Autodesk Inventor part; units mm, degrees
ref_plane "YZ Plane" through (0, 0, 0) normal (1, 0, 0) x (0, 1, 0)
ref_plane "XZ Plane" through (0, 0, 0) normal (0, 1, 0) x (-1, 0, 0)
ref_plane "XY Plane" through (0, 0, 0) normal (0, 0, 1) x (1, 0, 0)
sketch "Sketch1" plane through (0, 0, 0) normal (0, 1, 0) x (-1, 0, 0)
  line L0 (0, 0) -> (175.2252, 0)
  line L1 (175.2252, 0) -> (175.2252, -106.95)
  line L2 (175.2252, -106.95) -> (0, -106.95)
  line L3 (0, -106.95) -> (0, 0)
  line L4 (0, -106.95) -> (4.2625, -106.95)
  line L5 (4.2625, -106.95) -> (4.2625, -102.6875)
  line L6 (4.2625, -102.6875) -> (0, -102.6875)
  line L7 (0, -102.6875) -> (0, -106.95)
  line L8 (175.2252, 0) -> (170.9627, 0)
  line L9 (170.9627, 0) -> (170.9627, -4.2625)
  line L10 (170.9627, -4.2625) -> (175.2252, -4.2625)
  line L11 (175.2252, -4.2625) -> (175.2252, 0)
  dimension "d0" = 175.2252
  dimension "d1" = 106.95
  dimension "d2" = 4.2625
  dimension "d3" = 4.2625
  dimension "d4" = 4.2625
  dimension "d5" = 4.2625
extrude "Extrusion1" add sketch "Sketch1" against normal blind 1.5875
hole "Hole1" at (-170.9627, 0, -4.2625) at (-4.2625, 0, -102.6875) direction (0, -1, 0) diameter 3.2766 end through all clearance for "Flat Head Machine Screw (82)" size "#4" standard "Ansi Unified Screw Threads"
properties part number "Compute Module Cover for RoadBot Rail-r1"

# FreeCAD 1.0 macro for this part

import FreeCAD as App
import Part
import Sketcher
from FreeCAD import Vector
Q = App.Units.Quantity


def add_polygon(sketch, points):
    """Adds a closed chain of lines whose ends are joined by coincident constraints."""
    first, n = sketch.GeometryCount, len(points)
    for a, b in zip(points, points[1:] + points[:1]):
        sketch.addGeometry(Part.LineSegment(App.Vector(*a, 0), App.Vector(*b, 0)), False)
    for i in range(n):
        sketch.addConstraint(Sketcher.Constraint("Coincident", first + i, 2, first + (i + 1) % n, 1))

doc = App.newDocument("Part")
params = doc.addObject("Spreadsheet::Sheet", "Params")
for row, (alias, value) in enumerate([
    ("pad1_length", "0.0625 in"),
    ("sketch2_diameter", "0.129 in"),
    ("hole_diameter", "0.129 in"),
], start=1):
    params.set(f"A{row}", alias)
    params.set(f"B{row}", "=" + value)
    params.setAlias(f"B{row}", alias)

body = doc.addObject("PartDesign::Body", "Body")

# Sketch on XZ plane
sketch1 = body.newObject("Sketcher::SketchObject", "Sketch")
sketch1.AttachmentSupport = (doc.getObject("XZ_Plane"), [""])
sketch1.MapMode = "FlatFace"
add_polygon(sketch1, [(0, 0), (0, -107), (-175, -107), (-175, 0)])  # lines 0-3
sketch1.addConstraint([
    Sketcher.Constraint("Vertical", 0),
    Sketcher.Constraint("Horizontal", 1),
    Sketcher.Constraint("Vertical", 2),
    Sketcher.Constraint("Horizontal", 3),
    Sketcher.Constraint("Coincident", 3, 2, -1, 1),
    Sketcher.Constraint("DistanceX", 1, 2, 1, 1, 175.2252),
    Sketcher.Constraint("DistanceY", 0, 2, 0, 1, 106.95),
])
pad1 = body.newObject("PartDesign::Pad", "Pad")
pad1.Profile = sketch1
pad1.setExpression("Length", "Params.pad1_length")

# Sketch on XZ plane
sketch2 = body.newObject("Sketcher::SketchObject", "Sketch001")
sketch2.AttachmentSupport = (doc.getObject("XZ_Plane"), [""])
sketch2.MapMode = "FlatFace"
sketch2.addGeometry([
    Part.Circle(Vector(-171, -4.3, 0), Vector(0, 0, 1), 1.6),
    Part.Circle(Vector(-4.3, -102.7, 0), Vector(0, 0, 1), 1.6),
], False)
sketch2.addConstraint([
    Sketcher.Constraint("Equal", 0, 1),
    Sketcher.Constraint("Diameter", 0, Q("0.129 in")),
    Sketcher.Constraint("DistanceX", 0, 3, 1, 3, Q("6.563 in")),
    Sketcher.Constraint("DistanceY", 1, 3, 0, 3, Q("3.875 in")),
    Sketcher.Constraint("DistanceX", 0, 3, -1, 1, 170.9627),
    Sketcher.Constraint("DistanceY", 0, 3, -1, 1, 4.2625),
])
sketch2.setExpression("Constraints[1]", "Params.sketch2_diameter")
doc.recompute()
hole = body.newObject("PartDesign::Hole", "Hole")
hole.Profile = sketch2
hole.ThreadType = "None"
hole.setExpression("Diameter", "Params.hole_diameter")
hole.DepthType = "ThroughAll"
hole.Reversed = True

doc.recompute()
